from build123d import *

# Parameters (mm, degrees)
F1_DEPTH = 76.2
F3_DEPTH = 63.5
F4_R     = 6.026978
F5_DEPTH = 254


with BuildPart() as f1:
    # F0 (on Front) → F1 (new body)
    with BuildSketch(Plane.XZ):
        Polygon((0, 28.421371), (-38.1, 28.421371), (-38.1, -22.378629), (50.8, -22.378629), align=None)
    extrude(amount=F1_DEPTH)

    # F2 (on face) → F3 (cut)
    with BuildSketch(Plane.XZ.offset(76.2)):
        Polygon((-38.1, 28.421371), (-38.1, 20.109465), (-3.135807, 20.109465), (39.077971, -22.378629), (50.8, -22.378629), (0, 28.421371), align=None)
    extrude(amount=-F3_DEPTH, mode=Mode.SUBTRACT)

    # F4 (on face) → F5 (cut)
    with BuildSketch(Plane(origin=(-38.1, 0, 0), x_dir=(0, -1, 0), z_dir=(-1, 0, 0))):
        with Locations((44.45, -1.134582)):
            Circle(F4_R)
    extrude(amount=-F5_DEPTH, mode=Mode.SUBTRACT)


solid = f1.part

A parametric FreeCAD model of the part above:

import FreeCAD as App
import Part
import Sketcher
Q = App.Units.Quantity


def add_polygon(sketch, points):
    """Adds a closed chain of lines whose ends are joined by coincident constraints."""
    first, n = sketch.GeometryCount, len(points)
    for a, b in zip(points, points[1:] + points[:1]):
        sketch.addGeometry(Part.LineSegment(App.Vector(*a, 0), App.Vector(*b, 0)), False)
    for i in range(n):
        sketch.addConstraint(Sketcher.Constraint("Coincident", first + i, 2, first + (i + 1) % n, 1))

doc = App.newDocument("Part")
body = doc.addObject("PartDesign::Body", "Body")

# Sketch on XZ plane
sketch1 = doc.addObject("Sketcher::SketchObject", "Sketch")
body.addObject(sketch1)
sketch1.AttachmentSupport = (doc.XZ_Plane, [""])
sketch1.MapMode = "FlatFace"
add_polygon(sketch1, [(0, 28.421371), (-38.1, 28.421371), (-38.1, -22.378629), (50.8, -22.378629)])  # lines 0-3
sketch1.addConstraint([
    Sketcher.Constraint("Horizontal", 0),
    Sketcher.Constraint("Vertical", 1),
    Sketcher.Constraint("Horizontal", 2),
    Sketcher.Constraint("PointOnObject", 3, 2, -2),
    Sketcher.Constraint("DistanceY", 1, 2, 1, 1, Q("2 in")),
    Sketcher.Constraint("DistanceX", 0, 2, 0, 1, Q("1.5 in")),
    Sketcher.Constraint("DistanceX", 2, 1, 2, 2, Q("3.5 in")),
    Sketcher.Constraint("DistanceY", -1, 1, 0, 2, 28.421371),
])
pad1 = doc.addObject("PartDesign::Pad", "Pad")
body.addObject(pad1)
pad1.Profile = sketch1
pad1.Length = Q("3 in")

# Sketch on XZ plane
sketch2 = doc.addObject("Sketcher::SketchObject", "Sketch001")
body.addObject(sketch2)
sketch2.AttachmentSupport = (doc.XZ_Plane, [""])
sketch2.MapMode = "FlatFace"
sketch2.AttachmentOffset = App.Placement(App.Vector(0, 0, 3 * 25.4), App.Rotation())
add_polygon(sketch2, [(-38.1, 28.421371), (-38.1, 20.109465), (-3.135807, 20.109465), (39.077971, -22.378629), (50.8, -22.378629), (0, 28.421371)])  # lines 0-5
sketch2.addConstraint([
    Sketcher.Constraint("Vertical", 0),
    Sketcher.Constraint("Horizontal", 1),
    Sketcher.Constraint("Horizontal", 3),
    Sketcher.Constraint("Horizontal", 5),
    Sketcher.Constraint("PointOnObject", 4, 2, -2),
    Sketcher.Constraint("DistanceX", 5, 2, 5, 1, Q("1.5 in")),
    Sketcher.Constraint("DistanceX", -1, 1, 3, 2, Q("2 in")),
    Sketcher.Constraint("Angle", 4, Q("135 deg")),
    Sketcher.Constraint("DistanceX", 3, 1, 3, 2, 11.722029),
    Sketcher.Constraint("DistanceX", 1, 1, 1, 2, 34.964193),
    Sketcher.Constraint("DistanceY", 0, 2, 0, 1, 8.311906),
    Sketcher.Constraint("DistanceY", 2, 2, -1, 1, 22.378629),
])
pocket1 = doc.addObject("PartDesign::Pocket", "Pocket")
body.addObject(pocket1)
pocket1.Profile = sketch2
pocket1.Length = Q("2.5 in")

# Sketch on YZ plane
sketch3 = doc.addObject("Sketcher::SketchObject", "Sketch002")
body.addObject(sketch3)
sketch3.AttachmentSupport = (doc.YZ_Plane, [""])
sketch3.MapMode = "FlatFace"
sketch3.AttachmentOffset = App.Placement(App.Vector(0, 0, -1.5 * 25.4), App.Rotation())
sketch3.addGeometry(Part.Circle(App.Vector(-44.45, -1.134582, 0), App.Vector(0, 0, 1), 6.026978), False)
sketch3.addConstraint([
    Sketcher.Constraint("DistanceX", 0, 3, -1, 1, Q("1.75 in")),
    Sketcher.Constraint("Diameter", 0, 12.053956),
    Sketcher.Constraint("DistanceY", 0, 3, -1, 1, 1.134582),
])
pocket2 = doc.addObject("PartDesign::Pocket", "Pocket001")
body.addObject(pocket2)
pocket2.Profile = sketch3
pocket2.Length = Q("10 in")
pocket2.Reversed = True

doc.recompute()
